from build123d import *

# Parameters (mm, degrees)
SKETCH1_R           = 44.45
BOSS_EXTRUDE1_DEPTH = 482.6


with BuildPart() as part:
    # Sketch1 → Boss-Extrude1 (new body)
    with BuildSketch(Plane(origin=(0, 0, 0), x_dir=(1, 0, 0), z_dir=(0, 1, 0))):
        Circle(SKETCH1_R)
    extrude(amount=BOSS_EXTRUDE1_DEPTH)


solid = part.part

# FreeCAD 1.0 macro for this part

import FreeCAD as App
import Part
import Sketcher

V = App.Vector
Q = App.Units.Quantity

doc = App.newDocument("Part")
params = doc.addObject("Spreadsheet::Sheet", "Params")
for row, (alias, value) in enumerate([
    ("sketch1_diameter", "3.5 in"),
    ("pad1_length", "19 in"),
], start=1):
    params.set(f"A{row}", alias)
    params.set(f"B{row}", "=" + value)
    params.setAlias(f"B{row}", alias)

body = doc.addObject("PartDesign::Body", "Body")

# Sketch on XZ plane
sketch1 = body.newObject("Sketcher::SketchObject", "Sketch")
sketch1.AttachmentSupport = (doc.getObject("XZ_Plane"), [""])
sketch1.MapMode = "FlatFace"
sketch1.addGeometry(Part.Circle(V(0, 0, 0), V(0, 0, 1), 44), False)
sketch1.addConstraint([
    Sketcher.Constraint("Coincident", 0, 3, -1, 1),
    Sketcher.Constraint("Diameter", 0, Q("3.5 in")),
])
sketch1.setExpression("Constraints[1]", "Params.sketch1_diameter")
pad1 = body.newObject("PartDesign::Pad", "Pad")
pad1.Profile = sketch1
pad1.setExpression("Length", "Params.pad1_length")
pad1.Reversed = True

doc.recompute()
